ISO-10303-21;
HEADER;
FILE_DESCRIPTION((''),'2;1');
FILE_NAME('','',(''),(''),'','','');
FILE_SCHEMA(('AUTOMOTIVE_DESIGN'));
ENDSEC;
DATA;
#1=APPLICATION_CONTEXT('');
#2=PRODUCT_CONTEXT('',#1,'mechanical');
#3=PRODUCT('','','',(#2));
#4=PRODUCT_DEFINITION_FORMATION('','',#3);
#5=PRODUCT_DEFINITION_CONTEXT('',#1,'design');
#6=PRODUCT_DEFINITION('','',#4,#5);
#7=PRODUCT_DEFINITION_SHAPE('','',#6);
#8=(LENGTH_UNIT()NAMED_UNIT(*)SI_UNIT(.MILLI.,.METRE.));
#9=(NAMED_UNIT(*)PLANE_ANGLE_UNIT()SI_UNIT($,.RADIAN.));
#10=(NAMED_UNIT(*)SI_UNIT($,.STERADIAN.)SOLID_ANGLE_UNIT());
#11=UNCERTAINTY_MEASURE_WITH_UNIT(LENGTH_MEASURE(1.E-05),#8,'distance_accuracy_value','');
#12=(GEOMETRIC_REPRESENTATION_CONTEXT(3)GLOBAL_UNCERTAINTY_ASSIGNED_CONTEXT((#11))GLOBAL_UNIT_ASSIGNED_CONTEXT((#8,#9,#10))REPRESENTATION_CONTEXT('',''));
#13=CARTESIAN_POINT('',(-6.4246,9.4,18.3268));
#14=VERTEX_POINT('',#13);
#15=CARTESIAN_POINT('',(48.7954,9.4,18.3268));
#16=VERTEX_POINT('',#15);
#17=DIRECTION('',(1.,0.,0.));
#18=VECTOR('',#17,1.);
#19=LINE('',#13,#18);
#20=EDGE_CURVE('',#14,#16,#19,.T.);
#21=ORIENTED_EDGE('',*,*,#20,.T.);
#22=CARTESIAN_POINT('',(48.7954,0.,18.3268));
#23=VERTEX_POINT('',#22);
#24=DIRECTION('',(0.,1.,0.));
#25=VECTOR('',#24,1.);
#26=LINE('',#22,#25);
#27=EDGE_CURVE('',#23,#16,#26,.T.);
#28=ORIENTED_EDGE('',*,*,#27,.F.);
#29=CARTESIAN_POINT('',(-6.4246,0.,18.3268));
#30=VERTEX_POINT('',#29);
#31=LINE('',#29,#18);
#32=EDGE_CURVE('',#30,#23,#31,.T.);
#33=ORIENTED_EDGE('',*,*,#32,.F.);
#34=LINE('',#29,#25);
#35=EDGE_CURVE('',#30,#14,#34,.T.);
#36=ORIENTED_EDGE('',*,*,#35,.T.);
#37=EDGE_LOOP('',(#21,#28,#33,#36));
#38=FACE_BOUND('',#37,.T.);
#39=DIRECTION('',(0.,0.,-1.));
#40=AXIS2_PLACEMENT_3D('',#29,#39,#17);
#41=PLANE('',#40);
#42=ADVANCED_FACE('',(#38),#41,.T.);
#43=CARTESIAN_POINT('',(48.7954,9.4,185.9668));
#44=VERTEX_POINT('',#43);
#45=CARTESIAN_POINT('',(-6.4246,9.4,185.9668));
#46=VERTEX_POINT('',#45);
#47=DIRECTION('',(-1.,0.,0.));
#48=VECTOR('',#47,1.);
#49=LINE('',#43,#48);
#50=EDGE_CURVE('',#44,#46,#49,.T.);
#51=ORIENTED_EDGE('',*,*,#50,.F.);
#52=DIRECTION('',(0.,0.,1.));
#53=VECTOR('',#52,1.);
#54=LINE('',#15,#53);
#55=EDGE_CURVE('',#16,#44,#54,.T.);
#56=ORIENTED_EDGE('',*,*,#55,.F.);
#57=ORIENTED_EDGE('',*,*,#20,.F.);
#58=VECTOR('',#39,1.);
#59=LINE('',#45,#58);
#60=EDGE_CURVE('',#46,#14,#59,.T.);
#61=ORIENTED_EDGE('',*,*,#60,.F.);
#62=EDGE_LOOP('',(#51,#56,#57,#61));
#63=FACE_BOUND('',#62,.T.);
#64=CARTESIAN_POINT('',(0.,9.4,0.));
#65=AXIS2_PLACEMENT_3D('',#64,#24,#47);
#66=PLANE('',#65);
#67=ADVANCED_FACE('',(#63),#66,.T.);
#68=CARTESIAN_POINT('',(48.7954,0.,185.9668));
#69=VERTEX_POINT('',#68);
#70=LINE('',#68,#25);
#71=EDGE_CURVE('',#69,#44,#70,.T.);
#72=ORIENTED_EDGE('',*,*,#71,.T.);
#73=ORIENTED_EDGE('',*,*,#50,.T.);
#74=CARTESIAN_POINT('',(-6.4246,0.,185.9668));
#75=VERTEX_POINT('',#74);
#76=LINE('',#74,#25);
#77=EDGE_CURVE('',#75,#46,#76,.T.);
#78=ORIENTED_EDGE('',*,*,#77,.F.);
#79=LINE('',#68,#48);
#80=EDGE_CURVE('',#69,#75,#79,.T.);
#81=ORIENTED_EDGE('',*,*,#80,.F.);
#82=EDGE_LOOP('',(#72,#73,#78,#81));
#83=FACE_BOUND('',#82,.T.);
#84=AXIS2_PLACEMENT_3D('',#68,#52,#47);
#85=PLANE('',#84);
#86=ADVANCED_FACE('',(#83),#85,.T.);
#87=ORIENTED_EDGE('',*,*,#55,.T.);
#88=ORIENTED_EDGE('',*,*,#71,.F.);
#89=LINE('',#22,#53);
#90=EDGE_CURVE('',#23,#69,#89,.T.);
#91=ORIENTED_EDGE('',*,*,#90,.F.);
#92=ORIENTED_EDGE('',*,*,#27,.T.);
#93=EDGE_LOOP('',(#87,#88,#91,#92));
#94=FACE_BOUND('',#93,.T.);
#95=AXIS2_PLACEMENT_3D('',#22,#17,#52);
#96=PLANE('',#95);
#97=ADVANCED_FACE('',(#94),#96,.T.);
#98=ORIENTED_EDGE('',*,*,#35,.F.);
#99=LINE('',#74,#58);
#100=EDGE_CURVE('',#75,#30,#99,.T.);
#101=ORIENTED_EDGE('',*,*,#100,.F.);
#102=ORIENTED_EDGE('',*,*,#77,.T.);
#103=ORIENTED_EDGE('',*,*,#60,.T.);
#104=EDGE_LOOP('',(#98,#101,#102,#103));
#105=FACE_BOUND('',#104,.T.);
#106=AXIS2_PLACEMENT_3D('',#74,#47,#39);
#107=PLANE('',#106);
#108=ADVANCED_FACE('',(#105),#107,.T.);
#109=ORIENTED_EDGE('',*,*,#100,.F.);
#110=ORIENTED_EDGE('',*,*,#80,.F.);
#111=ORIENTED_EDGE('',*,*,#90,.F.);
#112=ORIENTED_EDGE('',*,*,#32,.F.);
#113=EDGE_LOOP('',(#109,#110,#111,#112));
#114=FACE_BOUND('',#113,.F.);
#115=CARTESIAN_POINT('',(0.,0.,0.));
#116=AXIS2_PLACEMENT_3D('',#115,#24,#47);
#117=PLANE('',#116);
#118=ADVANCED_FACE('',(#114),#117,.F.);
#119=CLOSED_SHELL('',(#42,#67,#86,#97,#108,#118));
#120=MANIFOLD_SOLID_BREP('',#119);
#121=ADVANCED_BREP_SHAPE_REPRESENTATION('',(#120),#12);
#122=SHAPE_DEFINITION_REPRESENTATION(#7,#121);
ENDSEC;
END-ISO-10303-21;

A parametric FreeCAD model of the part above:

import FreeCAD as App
import Part
import Sketcher

V = App.Vector
Q = App.Units.Quantity

doc = App.newDocument("Part")
body = doc.addObject("PartDesign::Body", "Body")

sketch1 = doc.addObject("Sketcher::SketchObject", "Sketch")
body.addObject(sketch1)
sketch1.AttachmentSupport = (doc.XZ_Plane, [""])
sketch1.MapMode = "FlatFace"
sketch1.addGeometry([
    Part.LineSegment(V(49, 18, 0), V(-6, 18, 0)),
    Part.LineSegment(V(-6, 18, 0), V(-6, 186, 0)),
    Part.LineSegment(V(-6, 186, 0), V(49, 186, 0)),
    Part.LineSegment(V(49, 186, 0), V(49, 18, 0)),
], False)
sketch1.addConstraint([
    Sketcher.Constraint("Coincident", 0, 2, 1, 1),
    Sketcher.Constraint("Coincident", 1, 2, 2, 1),
    Sketcher.Constraint("Coincident", 2, 2, 3, 1),
    Sketcher.Constraint("Coincident", 3, 2, 0, 1),
    Sketcher.Constraint("Horizontal", 0),
    Sketcher.Constraint("Vertical", 1),
    Sketcher.Constraint("Horizontal", 2),
    Sketcher.Constraint("Vertical", 3),
    Sketcher.Constraint("DistanceX", 0, 2, 0, 1, Q("55.22 mm")),
    Sketcher.Constraint("DistanceY", 1, 1, 1, 2, Q("167.64 mm")),
    Sketcher.Constraint("DistanceX", 0, 2, -1, 1, Q("6.4246 mm")),
    Sketcher.Constraint("DistanceY", -1, 1, 0, 2, Q("18.3268 mm")),
])
pad1 = doc.addObject("PartDesign::Pad", "Pad")
body.addObject(pad1)
pad1.Profile = sketch1
pad1.Length = 9.4
pad1.Reversed = True

doc.recompute()
